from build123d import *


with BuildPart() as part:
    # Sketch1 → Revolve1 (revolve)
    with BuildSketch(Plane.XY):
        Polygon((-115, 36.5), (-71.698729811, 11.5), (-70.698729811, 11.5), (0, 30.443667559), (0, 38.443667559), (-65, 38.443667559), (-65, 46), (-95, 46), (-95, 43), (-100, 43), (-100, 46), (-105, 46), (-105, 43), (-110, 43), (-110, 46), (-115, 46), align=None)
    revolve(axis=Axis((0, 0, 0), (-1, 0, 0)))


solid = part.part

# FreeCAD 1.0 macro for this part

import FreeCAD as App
import Part
import Sketcher
Q = App.Units.Quantity

doc = App.newDocument("Part")
params = doc.addObject("Spreadsheet::Sheet", "Params")
for row, (alias, value) in enumerate([
    ("sketch1_width", "1 mm"),
    ("sketch1_width2", "65 mm"),
    ("sketch1_width3", "30 mm"),
    ("sketch1_width4", "5 mm"),
    ("sketch1_height", "8 mm"),
    ("revolution_angle", "360 deg"),
], start=1):
    params.set(f"A{row}", alias)
    params.set(f"B{row}", "=" + value)
    params.setAlias(f"B{row}", alias)

body = doc.addObject("PartDesign::Body", "Body")

# Sketch on XY plane
sketch1 = doc.addObject("Sketcher::SketchObject", "Sketch")
body.addObject(sketch1)
sketch1.AttachmentSupport = (doc.XY_Plane, [""])
sketch1.MapMode = "FlatFace"
sketch1.addGeometry(Part.LineSegment(App.Vector(-115, 36.5, 0), App.Vector(-71.69873, 11.5, 0)), False)
sketch1.addGeometry(Part.LineSegment(App.Vector(-71.69873, 11.5, 0), App.Vector(-70.69873, 11.5, 0)), False)
sketch1.addGeometry(Part.LineSegment(App.Vector(-70.69873, 11.5, 0), App.Vector(0, 30.443668, 0)), False)
sketch1.addGeometry(Part.LineSegment(App.Vector(0, 30.443668, 0), App.Vector(0, 38.443668, 0)), False)
sketch1.addGeometry(Part.LineSegment(App.Vector(0, 38.443668, 0), App.Vector(-65, 38.443668, 0)), False)
sketch1.addGeometry(Part.LineSegment(App.Vector(-65, 38.443668, 0), App.Vector(-65, 46, 0)), False)
sketch1.addGeometry(Part.LineSegment(App.Vector(-65, 46, 0), App.Vector(-95, 46, 0)), False)
sketch1.addGeometry(Part.LineSegment(App.Vector(-95, 46, 0), App.Vector(-95, 43, 0)), False)
sketch1.addGeometry(Part.LineSegment(App.Vector(-95, 43, 0), App.Vector(-100, 43, 0)), False)
sketch1.addGeometry(Part.LineSegment(App.Vector(-100, 43, 0), App.Vector(-100, 46, 0)), False)
sketch1.addGeometry(Part.LineSegment(App.Vector(-100, 46, 0), App.Vector(-105, 46, 0)), False)
sketch1.addGeometry(Part.LineSegment(App.Vector(-105, 46, 0), App.Vector(-105, 43, 0)), False)
sketch1.addGeometry(Part.LineSegment(App.Vector(-105, 43, 0), App.Vector(-110, 43, 0)), False)
sketch1.addGeometry(Part.LineSegment(App.Vector(-110, 43, 0), App.Vector(-110, 46, 0)), False)
sketch1.addGeometry(Part.LineSegment(App.Vector(-110, 46, 0), App.Vector(-115, 46, 0)), False)
sketch1.addGeometry(Part.LineSegment(App.Vector(-115, 46, 0), App.Vector(-115, 36.5, 0)), False)
sketch1.addConstraint(Sketcher.Constraint("Coincident", 0, 2, 1, 1))
sketch1.addConstraint(Sketcher.Constraint("Coincident", 1, 2, 2, 1))
sketch1.addConstraint(Sketcher.Constraint("Coincident", 2, 2, 3, 1))
sketch1.addConstraint(Sketcher.Constraint("Coincident", 3, 2, 4, 1))
sketch1.addConstraint(Sketcher.Constraint("Coincident", 4, 2, 5, 1))
sketch1.addConstraint(Sketcher.Constraint("Coincident", 5, 2, 6, 1))
sketch1.addConstraint(Sketcher.Constraint("Coincident", 6, 2, 7, 1))
sketch1.addConstraint(Sketcher.Constraint("Coincident", 7, 2, 8, 1))
sketch1.addConstraint(Sketcher.Constraint("Coincident", 8, 2, 9, 1))
sketch1.addConstraint(Sketcher.Constraint("Coincident", 9, 2, 10, 1))
sketch1.addConstraint(Sketcher.Constraint("Coincident", 10, 2, 11, 1))
sketch1.addConstraint(Sketcher.Constraint("Coincident", 11, 2, 12, 1))
sketch1.addConstraint(Sketcher.Constraint("Coincident", 12, 2, 13, 1))
sketch1.addConstraint(Sketcher.Constraint("Coincident", 13, 2, 14, 1))
sketch1.addConstraint(Sketcher.Constraint("Coincident", 14, 2, 15, 1))
sketch1.addConstraint(Sketcher.Constraint("Coincident", 15, 2, 0, 1))
sketch1.addConstraint(Sketcher.Constraint("Horizontal", 1))
sketch1.addConstraint(Sketcher.Constraint("Vertical", 3))
sketch1.addConstraint(Sketcher.Constraint("Horizontal", 4))
sketch1.addConstraint(Sketcher.Constraint("Vertical", 5))
sketch1.addConstraint(Sketcher.Constraint("Horizontal", 6))
sketch1.addConstraint(Sketcher.Constraint("Vertical", 7))
sketch1.addConstraint(Sketcher.Constraint("Horizontal", 8))
sketch1.addConstraint(Sketcher.Constraint("Vertical", 9))
sketch1.addConstraint(Sketcher.Constraint("Horizontal", 10))
sketch1.addConstraint(Sketcher.Constraint("Vertical", 11))
sketch1.addConstraint(Sketcher.Constraint("Horizontal", 12))
sketch1.addConstraint(Sketcher.Constraint("Vertical", 13))
sketch1.addConstraint(Sketcher.Constraint("Horizontal", 14))
sketch1.addConstraint(Sketcher.Constraint("Vertical", 15))
sketch1.addConstraint(Sketcher.Constraint("PointOnObject", 2, 2, -2))
sketch1.addConstraint(Sketcher.Constraint("Horizontal", 6, 2, 9, 2))
sketch1.addConstraint(Sketcher.Constraint("Horizontal", 8, 2, 11, 2))
sketch1.addConstraint(Sketcher.Constraint("Horizontal", 10, 2, 13, 2))
sketch1.addConstraint(Sketcher.Constraint("Equal", 8, 10))
sketch1.addConstraint(Sketcher.Constraint("Equal", 10, 12))
sketch1.addConstraint(Sketcher.Constraint("Equal", 12, 14))
sketch1.addConstraint(Sketcher.Constraint("DistanceX", 1, 1, 1, 2, 1.0))
sketch1.addConstraint(Sketcher.Constraint("DistanceX", 4, 2, 4, 1, 65.0))
sketch1.addConstraint(Sketcher.Constraint("DistanceX", 6, 2, 6, 1, 30.0))
sketch1.addConstraint(Sketcher.Constraint("DistanceX", 8, 2, 8, 1, 5.0))
sketch1.addConstraint(Sketcher.Constraint("DistanceY", 3, 1, 3, 2, 8.0))
sketch1.addConstraint(Sketcher.Constraint("DistanceY", 7, 2, 7, 1, 3.0))
sketch1.addConstraint(Sketcher.Constraint("Angle", 0, Q("-30 deg")))
sketch1.addConstraint(Sketcher.Constraint("Angle", 2, Q("15 deg")))
sketch1.addConstraint(Sketcher.Constraint("Distance", 0, 50.0))
sketch1.addConstraint(Sketcher.Constraint("DistanceY", 15, 2, 15, 1, 9.5))
sketch1.addConstraint(Sketcher.Constraint("DistanceY", -1, 1, 5, 2, 46.0))
sketch1.setExpression("Constraints[37]", "Params.sketch1_width")
sketch1.setExpression("Constraints[38]", "Params.sketch1_width2")
sketch1.setExpression("Constraints[39]", "Params.sketch1_width3")
sketch1.setExpression("Constraints[40]", "Params.sketch1_width4")
sketch1.setExpression("Constraints[41]", "Params.sketch1_height")
revolution = doc.addObject("PartDesign::Revolution", "Revolution")
body.addObject(revolution)
revolution.Profile = sketch1
revolution.ReferenceAxis = (sketch1, ["H_Axis"])
revolution.setExpression("Angle", "Params.revolution_angle")

doc.recompute()
